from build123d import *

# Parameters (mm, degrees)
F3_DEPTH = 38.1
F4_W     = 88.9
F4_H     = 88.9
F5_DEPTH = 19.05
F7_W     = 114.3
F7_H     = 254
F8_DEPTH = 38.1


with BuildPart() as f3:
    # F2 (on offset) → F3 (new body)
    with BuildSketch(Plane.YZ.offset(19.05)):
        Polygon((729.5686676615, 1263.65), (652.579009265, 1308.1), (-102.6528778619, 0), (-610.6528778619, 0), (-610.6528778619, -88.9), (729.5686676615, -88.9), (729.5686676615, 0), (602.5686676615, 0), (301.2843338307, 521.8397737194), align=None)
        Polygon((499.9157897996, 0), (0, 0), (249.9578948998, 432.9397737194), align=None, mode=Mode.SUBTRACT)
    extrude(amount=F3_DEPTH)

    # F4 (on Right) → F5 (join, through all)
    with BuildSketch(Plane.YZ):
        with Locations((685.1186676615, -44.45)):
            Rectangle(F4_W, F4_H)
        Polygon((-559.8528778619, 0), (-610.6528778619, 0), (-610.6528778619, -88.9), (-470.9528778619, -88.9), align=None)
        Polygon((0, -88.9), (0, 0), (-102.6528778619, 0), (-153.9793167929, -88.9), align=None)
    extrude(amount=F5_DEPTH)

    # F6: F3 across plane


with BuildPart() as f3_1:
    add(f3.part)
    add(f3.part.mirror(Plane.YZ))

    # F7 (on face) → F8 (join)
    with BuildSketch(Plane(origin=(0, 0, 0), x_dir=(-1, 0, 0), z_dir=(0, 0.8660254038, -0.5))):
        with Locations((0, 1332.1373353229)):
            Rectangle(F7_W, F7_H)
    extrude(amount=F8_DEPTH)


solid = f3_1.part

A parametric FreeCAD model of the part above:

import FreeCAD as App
import Part
import Sketcher
from FreeCAD import Vector
Q = App.Units.Quantity

doc = App.newDocument("Part")
params = doc.addObject("Spreadsheet::Sheet", "Params")
for row, (alias, value) in enumerate([
    ("sketch1_width", "20 in"),
    ("sketch1_width2", "5 in"),
    ("sketch1_height", "3.5 in"),
    ("sketch1_length", "3.5 in"),
    ("pad1_length", "1.5 in"),
    ("sketch2_width", "2 in"),
    ("sketch2_width2", "3.5 in"),
    ("sketch2_width3", "5.5 in"),
    ("sketch3_height", "10 in"),
    ("sketch3_width", "4.5 in"),
    ("pad3_length", "1.5 in"),
], start=1):
    params.set(f"A{row}", alias)
    params.set(f"B{row}", "=" + value)
    params.setAlias(f"B{row}", alias)

body = doc.addObject("PartDesign::Body", "Body")

# Sketch on YZ plane
sketch1 = doc.addObject("Sketcher::SketchObject", "Sketch")
body.addObject(sketch1)
sketch1.AttachmentSupport = (doc.YZ_Plane, [""])
sketch1.MapMode = "FlatFace"
sketch1.AttachmentOffset = App.Placement(Vector(0, 0, 0.75 * 25.4), App.Rotation())
sketch1.addGeometry(Part.LineSegment(Vector(730, 1264, 0), Vector(653, 1308, 0)), False)
sketch1.addGeometry(Part.LineSegment(Vector(653, 1308, 0), Vector(-103, 0, 0)), False)
sketch1.addGeometry(Part.LineSegment(Vector(-103, 0, 0), Vector(-611, 0, 0)), False)
sketch1.addGeometry(Part.LineSegment(Vector(-611, 0, 0), Vector(-611, -89, 0)), False)
sketch1.addGeometry(Part.LineSegment(Vector(-611, -89, 0), Vector(730, -89, 0)), False)
sketch1.addGeometry(Part.LineSegment(Vector(730, -89, 0), Vector(730, 0, 0)), False)
sketch1.addGeometry(Part.LineSegment(Vector(730, 0, 0), Vector(603, 0, 0)), False)
sketch1.addGeometry(Part.LineSegment(Vector(603, 0, 0), Vector(301, 522, 0)), False)
sketch1.addGeometry(Part.LineSegment(Vector(301, 522, 0), Vector(730, 1264, 0)), False)
sketch1.addGeometry(Part.LineSegment(Vector(250, 433, 0), Vector(500, 0, 0)), False)
sketch1.addGeometry(Part.LineSegment(Vector(500, 0, 0), Vector(0, 0, 0)), False)
sketch1.addGeometry(Part.LineSegment(Vector(0, 0, 0), Vector(250, 433, 0)), False)
sketch1.addConstraint(Sketcher.Constraint("Coincident", 0, 2, 1, 1))
sketch1.addConstraint(Sketcher.Constraint("Coincident", 1, 2, 2, 1))
sketch1.addConstraint(Sketcher.Constraint("Coincident", 2, 2, 3, 1))
sketch1.addConstraint(Sketcher.Constraint("Coincident", 3, 2, 4, 1))
sketch1.addConstraint(Sketcher.Constraint("Coincident", 4, 2, 5, 1))
sketch1.addConstraint(Sketcher.Constraint("Coincident", 5, 2, 6, 1))
sketch1.addConstraint(Sketcher.Constraint("Coincident", 6, 2, 7, 1))
sketch1.addConstraint(Sketcher.Constraint("Coincident", 7, 2, 8, 1))
sketch1.addConstraint(Sketcher.Constraint("Coincident", 8, 2, 0, 1))
sketch1.addConstraint(Sketcher.Constraint("Coincident", 9, 2, 10, 1))
sketch1.addConstraint(Sketcher.Constraint("Coincident", 10, 2, 11, 1))
sketch1.addConstraint(Sketcher.Constraint("Coincident", 11, 2, 9, 1))
sketch1.addConstraint(Sketcher.Constraint("Horizontal", 2))
sketch1.addConstraint(Sketcher.Constraint("Vertical", 3))
sketch1.addConstraint(Sketcher.Constraint("Horizontal", 4))
sketch1.addConstraint(Sketcher.Constraint("Vertical", 5))
sketch1.addConstraint(Sketcher.Constraint("Horizontal", 6))
sketch1.addConstraint(Sketcher.Constraint("Horizontal", 10))
sketch1.addConstraint(Sketcher.Constraint("Coincident", 10, 2, -1, 1))
sketch1.addConstraint(Sketcher.Constraint("PointOnObject", 1, 2, -1))
sketch1.addConstraint(Sketcher.Constraint("PointOnObject", 5, 2, -1))
sketch1.addConstraint(Sketcher.Constraint("Perpendicular", 0, 1))
sketch1.addConstraint(Sketcher.Constraint("Parallel", 1, 8))
sketch1.addConstraint(Sketcher.Constraint("Parallel", 7, 9))
sketch1.addConstraint(Sketcher.Constraint("Parallel", 8, 11))
sketch1.addConstraint(Sketcher.Constraint("Vertical", 5, 2, 8, 2))
sketch1.addConstraint(Sketcher.Constraint("Equal", 9, 11))
sketch1.addConstraint(Sketcher.Constraint("DistanceX", 2, 2, 2, 1, Q("20 in")))
sketch1.addConstraint(Sketcher.Constraint("DistanceX", 6, 2, 6, 1, Q("5 in")))
sketch1.addConstraint(Sketcher.Constraint("DistanceY", 3, 2, 3, 1, Q("3.5 in")))
sketch1.addConstraint(Sketcher.Constraint("Angle", 0, Q("150 deg")))
sketch1.addConstraint(Sketcher.Constraint("DistanceY", 3, 2, 0, 2, Q("55 in")))
sketch1.addConstraint(Sketcher.Constraint("Distance", 0, Q("3.5 in")))
sketch1.addConstraint(Sketcher.Constraint("DistanceY", 11, 2, 7, 2, Q("3.5 in")))
sketch1.addConstraint(Sketcher.Constraint("DistanceX", -1, 1, 0, 2, Q("652.579009 mm")))
sketch1.setExpression("Constraints[27]", "Params.sketch1_width")
sketch1.setExpression("Constraints[28]", "Params.sketch1_width2")
sketch1.setExpression("Constraints[29]", "Params.sketch1_height")
sketch1.setExpression("Constraints[32]", "Params.sketch1_length")
pad1 = doc.addObject("PartDesign::Pad", "Pad")
body.addObject(pad1)
pad1.Profile = sketch1
pad1.setExpression("Length", "Params.pad1_length")

# Sketch on YZ plane
sketch2 = doc.addObject("Sketcher::SketchObject", "Sketch001")
body.addObject(sketch2)
sketch2.AttachmentSupport = (doc.YZ_Plane, [""])
sketch2.MapMode = "FlatFace"
sketch2.addGeometry(Part.LineSegment(Vector(641, 0, 0), Vector(641, -89, 0)), False)
sketch2.addGeometry(Part.LineSegment(Vector(641, -89, 0), Vector(730, -89, 0)), False)
sketch2.addGeometry(Part.LineSegment(Vector(730, -89, 0), Vector(730, 0, 0)), False)
sketch2.addGeometry(Part.LineSegment(Vector(730, 0, 0), Vector(641, 0, 0)), False)
sketch2.addGeometry(Part.LineSegment(Vector(-560, 0, 0), Vector(-611, 0, 0)), False)
sketch2.addGeometry(Part.LineSegment(Vector(-611, 0, 0), Vector(-611, -89, 0)), False)
sketch2.addGeometry(Part.LineSegment(Vector(-611, -89, 0), Vector(-471, -89, 0)), False)
sketch2.addGeometry(Part.LineSegment(Vector(-471, -89, 0), Vector(-560, 0, 0)), False)
sketch2.addGeometry(Part.LineSegment(Vector(0, -89, 0), Vector(0, 0, 0)), False)
sketch2.addGeometry(Part.LineSegment(Vector(0, 0, 0), Vector(-103, 0, 0)), False)
sketch2.addGeometry(Part.LineSegment(Vector(-103, 0, 0), Vector(-154, -89, 0)), False)
sketch2.addGeometry(Part.LineSegment(Vector(-154, -89, 0), Vector(0, -89, 0)), False)
sketch2.addConstraint(Sketcher.Constraint("Coincident", 0, 2, 1, 1))
sketch2.addConstraint(Sketcher.Constraint("Coincident", 1, 2, 2, 1))
sketch2.addConstraint(Sketcher.Constraint("Coincident", 2, 2, 3, 1))
sketch2.addConstraint(Sketcher.Constraint("Coincident", 3, 2, 0, 1))
sketch2.addConstraint(Sketcher.Constraint("Coincident", 4, 2, 5, 1))
sketch2.addConstraint(Sketcher.Constraint("Coincident", 5, 2, 6, 1))
sketch2.addConstraint(Sketcher.Constraint("Coincident", 6, 2, 7, 1))
sketch2.addConstraint(Sketcher.Constraint("Coincident", 7, 2, 4, 1))
sketch2.addConstraint(Sketcher.Constraint("Coincident", 8, 2, 9, 1))
sketch2.addConstraint(Sketcher.Constraint("Coincident", 9, 2, 10, 1))
sketch2.addConstraint(Sketcher.Constraint("Coincident", 10, 2, 11, 1))
sketch2.addConstraint(Sketcher.Constraint("Coincident", 11, 2, 8, 1))
sketch2.addConstraint(Sketcher.Constraint("Vertical", 0))
sketch2.addConstraint(Sketcher.Constraint("Horizontal", 1))
sketch2.addConstraint(Sketcher.Constraint("Vertical", 2))
sketch2.addConstraint(Sketcher.Constraint("Horizontal", 3))
sketch2.addConstraint(Sketcher.Constraint("Horizontal", 4))
sketch2.addConstraint(Sketcher.Constraint("Vertical", 5))
sketch2.addConstraint(Sketcher.Constraint("Horizontal", 6))
sketch2.addConstraint(Sketcher.Constraint("Vertical", 8))
sketch2.addConstraint(Sketcher.Constraint("Horizontal", 9))
sketch2.addConstraint(Sketcher.Constraint("Horizontal", 11))
sketch2.addConstraint(Sketcher.Constraint("Coincident", 8, 2, -1, 1))
sketch2.addConstraint(Sketcher.Constraint("PointOnObject", 2, 2, -1))
sketch2.addConstraint(Sketcher.Constraint("PointOnObject", 4, 2, -1))
sketch2.addConstraint(Sketcher.Constraint("Horizontal", 1, 2, 5, 2))
sketch2.addConstraint(Sketcher.Constraint("Horizontal", 6, 2, 10, 2))
sketch2.addConstraint(Sketcher.Constraint("Equal", 3, 0))
sketch2.addConstraint(Sketcher.Constraint("DistanceX", 4, 2, 4, 1, Q("2 in")))
sketch2.addConstraint(Sketcher.Constraint("DistanceX", 1, 1, 1, 2, Q("3.5 in")))
sketch2.addConstraint(Sketcher.Constraint("DistanceX", 6, 1, 6, 2, Q("5.5 in")))
sketch2.addConstraint(Sketcher.Constraint("Angle", 10, Q("-120 deg")))
sketch2.addConstraint(Sketcher.Constraint("DistanceX", 7, 2, 9, 2, Q("18 in")))
sketch2.addConstraint(Sketcher.Constraint("DistanceX", 9, 2, 9, 1, Q("102.652878 mm")))
sketch2.addConstraint(Sketcher.Constraint("DistanceX", -1, 1, 0, 2, Q("640.668668 mm")))
sketch2.setExpression("Constraints[28]", "Params.sketch2_width")
sketch2.setExpression("Constraints[29]", "Params.sketch2_width2")
sketch2.setExpression("Constraints[30]", "Params.sketch2_width3")
pad2 = doc.addObject("PartDesign::Pad", "Pad001")
body.addObject(pad2)
pad2.Profile = sketch2
pad2.Type = "UpToLast"
body2 = doc.addObject("PartDesign::Body", "Body001")
doc.recompute()

body2.BaseFeature = body
doc.recompute()

mirroring = doc.addObject("Part::Mirroring", "Mirroring")
mirroring.Source = body
mirroring.Base = Vector(0, 0, 0)
mirroring.Normal = Vector(1, 0, 0)
body3 = doc.addObject("PartDesign::Body", "Body002")
body3.BaseFeature = mirroring
boolean = doc.addObject("PartDesign::Boolean", "Boolean")
body2.addObject(boolean)
boolean.Type = "Fuse"
boolean.addObjects([body3])
doc.recompute()

# Sketch on an angled plane
sketch3 = doc.addObject("Sketcher::SketchObject", "Sketch002")
body2.addObject(sketch3)
sketch3.Placement = App.Placement(Vector(0, 0, 0), App.Rotation(Vector(-1, 0, 0), Vector(0, 0.5, 0.866025404), Vector(0, 0.866025404, -0.5), "ZXY"))
sketch3.addGeometry(Part.LineSegment(Vector(-57, 1459, 0), Vector(-57, 1205, 0)), False)
sketch3.addGeometry(Part.LineSegment(Vector(-57, 1205, 0), Vector(57, 1205, 0)), False)
sketch3.addGeometry(Part.LineSegment(Vector(57, 1205, 0), Vector(57, 1459, 0)), False)
sketch3.addGeometry(Part.LineSegment(Vector(57, 1459, 0), Vector(-57, 1459, 0)), False)
sketch3.addConstraint(Sketcher.Constraint("Coincident", 0, 2, 1, 1))
sketch3.addConstraint(Sketcher.Constraint("Coincident", 1, 2, 2, 1))
sketch3.addConstraint(Sketcher.Constraint("Coincident", 2, 2, 3, 1))
sketch3.addConstraint(Sketcher.Constraint("Coincident", 3, 2, 0, 1))
sketch3.addConstraint(Sketcher.Constraint("Vertical", 0))
sketch3.addConstraint(Sketcher.Constraint("Horizontal", 1))
sketch3.addConstraint(Sketcher.Constraint("Vertical", 2))
sketch3.addConstraint(Sketcher.Constraint("Horizontal", 3))
sketch3.addConstraint(Sketcher.Constraint("DistanceY", 0, 2, 0, 1, Q("10 in")))
sketch3.addConstraint(Sketcher.Constraint("DistanceX", 1, 1, 1, 2, Q("4.5 in")))
sketch3.addConstraint(Sketcher.Constraint("DistanceX", 0, 2, -1, 1, Q("2.25 in")))
sketch3.addConstraint(Sketcher.Constraint("DistanceY", -1, 1, 0, 2, Q("1205.137336 mm")))
sketch3.setExpression("Constraints[8]", "Params.sketch3_height")
sketch3.setExpression("Constraints[9]", "Params.sketch3_width")
pad3 = doc.addObject("PartDesign::Pad", "Pad002")
body2.addObject(pad3)
pad3.Profile = sketch3
pad3.setExpression("Length", "Params.pad3_length")
mirroring.Visibility = False

doc.recompute()
